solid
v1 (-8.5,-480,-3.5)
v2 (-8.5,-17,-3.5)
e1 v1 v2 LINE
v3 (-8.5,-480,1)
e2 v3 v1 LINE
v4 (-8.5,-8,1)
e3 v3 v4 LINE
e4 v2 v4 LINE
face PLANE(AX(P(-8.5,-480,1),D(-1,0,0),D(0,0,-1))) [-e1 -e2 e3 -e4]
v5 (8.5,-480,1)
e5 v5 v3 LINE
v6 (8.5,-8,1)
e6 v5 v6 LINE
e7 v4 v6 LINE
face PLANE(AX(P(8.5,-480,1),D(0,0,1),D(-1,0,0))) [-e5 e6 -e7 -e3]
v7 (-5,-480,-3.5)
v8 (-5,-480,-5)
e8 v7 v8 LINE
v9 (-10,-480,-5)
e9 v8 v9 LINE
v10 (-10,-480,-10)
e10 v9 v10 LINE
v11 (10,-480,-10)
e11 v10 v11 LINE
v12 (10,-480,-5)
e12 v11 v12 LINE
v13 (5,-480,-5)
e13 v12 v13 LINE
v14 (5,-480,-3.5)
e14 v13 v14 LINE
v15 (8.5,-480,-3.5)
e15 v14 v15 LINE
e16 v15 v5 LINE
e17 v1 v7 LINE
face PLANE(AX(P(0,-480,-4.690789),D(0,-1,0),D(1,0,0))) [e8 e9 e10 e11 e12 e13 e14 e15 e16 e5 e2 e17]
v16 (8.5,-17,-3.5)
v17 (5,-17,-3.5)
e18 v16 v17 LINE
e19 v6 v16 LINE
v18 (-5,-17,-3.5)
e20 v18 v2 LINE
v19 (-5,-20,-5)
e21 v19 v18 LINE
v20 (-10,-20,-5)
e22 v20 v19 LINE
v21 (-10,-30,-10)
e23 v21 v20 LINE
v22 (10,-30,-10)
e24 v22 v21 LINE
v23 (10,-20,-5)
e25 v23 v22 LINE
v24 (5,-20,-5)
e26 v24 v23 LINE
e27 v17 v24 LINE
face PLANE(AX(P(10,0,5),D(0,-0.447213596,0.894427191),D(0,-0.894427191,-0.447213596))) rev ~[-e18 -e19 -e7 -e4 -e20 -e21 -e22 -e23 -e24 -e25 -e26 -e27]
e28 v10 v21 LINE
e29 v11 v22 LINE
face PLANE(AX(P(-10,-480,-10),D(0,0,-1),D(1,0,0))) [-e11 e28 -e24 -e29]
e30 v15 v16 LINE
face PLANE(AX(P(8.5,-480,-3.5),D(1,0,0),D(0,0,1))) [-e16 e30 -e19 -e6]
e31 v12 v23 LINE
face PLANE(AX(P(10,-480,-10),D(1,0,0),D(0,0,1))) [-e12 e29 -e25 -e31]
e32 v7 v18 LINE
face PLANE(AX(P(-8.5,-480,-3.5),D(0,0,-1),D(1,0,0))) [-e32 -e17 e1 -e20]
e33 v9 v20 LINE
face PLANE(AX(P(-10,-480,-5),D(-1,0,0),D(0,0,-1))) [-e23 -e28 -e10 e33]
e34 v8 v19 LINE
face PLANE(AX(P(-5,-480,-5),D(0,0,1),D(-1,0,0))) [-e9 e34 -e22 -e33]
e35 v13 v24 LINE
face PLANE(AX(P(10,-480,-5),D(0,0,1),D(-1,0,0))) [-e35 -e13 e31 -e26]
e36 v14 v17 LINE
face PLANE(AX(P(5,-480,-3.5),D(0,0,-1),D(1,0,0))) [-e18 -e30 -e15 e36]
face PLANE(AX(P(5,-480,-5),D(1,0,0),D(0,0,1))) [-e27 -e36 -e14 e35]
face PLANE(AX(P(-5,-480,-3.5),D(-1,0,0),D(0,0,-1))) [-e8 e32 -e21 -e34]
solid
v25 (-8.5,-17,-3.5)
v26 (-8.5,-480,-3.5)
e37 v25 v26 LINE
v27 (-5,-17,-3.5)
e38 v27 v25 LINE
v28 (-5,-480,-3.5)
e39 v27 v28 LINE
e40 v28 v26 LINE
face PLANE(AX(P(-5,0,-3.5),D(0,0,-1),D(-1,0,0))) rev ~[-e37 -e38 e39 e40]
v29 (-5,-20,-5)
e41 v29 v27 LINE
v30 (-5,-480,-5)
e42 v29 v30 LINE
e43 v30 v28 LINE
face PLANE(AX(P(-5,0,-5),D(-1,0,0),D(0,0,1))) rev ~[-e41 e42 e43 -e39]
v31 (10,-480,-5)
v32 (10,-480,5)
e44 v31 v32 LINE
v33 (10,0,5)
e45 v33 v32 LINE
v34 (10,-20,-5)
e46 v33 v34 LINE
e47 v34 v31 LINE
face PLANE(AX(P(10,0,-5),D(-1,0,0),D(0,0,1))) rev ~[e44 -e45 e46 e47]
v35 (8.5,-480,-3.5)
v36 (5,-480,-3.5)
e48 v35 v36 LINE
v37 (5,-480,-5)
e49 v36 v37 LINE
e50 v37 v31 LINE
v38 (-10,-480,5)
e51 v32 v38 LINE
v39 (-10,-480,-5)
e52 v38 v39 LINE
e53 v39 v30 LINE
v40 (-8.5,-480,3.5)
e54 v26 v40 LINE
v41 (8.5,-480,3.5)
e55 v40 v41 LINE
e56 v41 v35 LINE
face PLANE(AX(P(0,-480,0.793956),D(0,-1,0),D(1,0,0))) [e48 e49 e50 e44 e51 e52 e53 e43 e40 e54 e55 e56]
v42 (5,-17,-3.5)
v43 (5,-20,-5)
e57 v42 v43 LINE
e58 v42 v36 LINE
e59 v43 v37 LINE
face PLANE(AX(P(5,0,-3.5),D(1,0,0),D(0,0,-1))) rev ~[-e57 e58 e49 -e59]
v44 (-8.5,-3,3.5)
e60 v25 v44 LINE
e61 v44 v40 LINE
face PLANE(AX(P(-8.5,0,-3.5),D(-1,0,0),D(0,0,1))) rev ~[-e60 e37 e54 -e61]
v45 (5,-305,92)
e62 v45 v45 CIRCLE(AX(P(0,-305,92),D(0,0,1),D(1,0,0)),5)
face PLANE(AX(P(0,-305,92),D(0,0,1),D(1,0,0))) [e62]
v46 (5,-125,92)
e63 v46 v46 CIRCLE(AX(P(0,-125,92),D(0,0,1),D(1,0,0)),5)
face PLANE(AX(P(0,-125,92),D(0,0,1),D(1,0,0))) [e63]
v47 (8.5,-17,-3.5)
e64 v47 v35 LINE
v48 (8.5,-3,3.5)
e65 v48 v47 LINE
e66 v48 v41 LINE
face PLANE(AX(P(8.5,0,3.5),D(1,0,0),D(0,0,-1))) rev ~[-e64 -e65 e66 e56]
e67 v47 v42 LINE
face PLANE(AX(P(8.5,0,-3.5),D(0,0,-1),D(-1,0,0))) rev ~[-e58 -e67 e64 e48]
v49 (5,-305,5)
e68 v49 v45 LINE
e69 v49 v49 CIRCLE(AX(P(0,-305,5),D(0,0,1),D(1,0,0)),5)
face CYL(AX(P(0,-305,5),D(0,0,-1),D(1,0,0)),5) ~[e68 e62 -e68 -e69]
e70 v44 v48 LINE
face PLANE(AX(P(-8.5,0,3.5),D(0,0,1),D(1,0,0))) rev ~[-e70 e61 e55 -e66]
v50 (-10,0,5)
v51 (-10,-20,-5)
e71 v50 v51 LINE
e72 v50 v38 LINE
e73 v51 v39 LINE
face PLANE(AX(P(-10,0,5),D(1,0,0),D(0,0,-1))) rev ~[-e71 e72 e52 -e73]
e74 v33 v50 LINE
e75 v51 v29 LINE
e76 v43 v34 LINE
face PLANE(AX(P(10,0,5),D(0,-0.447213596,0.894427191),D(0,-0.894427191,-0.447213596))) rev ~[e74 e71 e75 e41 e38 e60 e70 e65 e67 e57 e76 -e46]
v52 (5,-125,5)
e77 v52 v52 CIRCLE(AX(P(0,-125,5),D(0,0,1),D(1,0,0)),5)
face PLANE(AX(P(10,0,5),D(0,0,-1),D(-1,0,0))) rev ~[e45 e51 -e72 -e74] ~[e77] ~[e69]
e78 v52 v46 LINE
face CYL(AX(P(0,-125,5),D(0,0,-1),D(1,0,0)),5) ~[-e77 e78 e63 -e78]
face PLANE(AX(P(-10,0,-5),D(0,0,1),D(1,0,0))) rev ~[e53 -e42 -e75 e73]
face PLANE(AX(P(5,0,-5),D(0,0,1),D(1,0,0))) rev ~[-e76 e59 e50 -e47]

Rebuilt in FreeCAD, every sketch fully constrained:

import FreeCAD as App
import Part
import Sketcher

doc = App.newDocument("Part")
body = doc.addObject("PartDesign::Body", "Body")

# Sketch on XZ plane
sketch1 = body.newObject("Sketcher::SketchObject", "Sketch")
sketch1.AttachmentSupport = (doc.getObject("XZ_Plane"), [""])
sketch1.MapMode = "FlatFace"
sketch1.addGeometry([
    Part.LineSegment(App.Vector(-10, 5, 0), App.Vector(-10, -5, 0)),  # 0
    Part.LineSegment(App.Vector(-10, -5, 0), App.Vector(-5, -5, 0)),  # 1
    Part.LineSegment(App.Vector(-5, -5, 0), App.Vector(-5, -3.5, 0)),  # 2
    Part.LineSegment(App.Vector(-5, -3.5, 0), App.Vector(-8.5, -3.5, 0)),  # 3
    Part.LineSegment(App.Vector(-8.5, -3.5, 0), App.Vector(-8.5, 3.5, 0)),  # 4
    Part.LineSegment(App.Vector(-8.5, 3.5, 0), App.Vector(8.5, 3.5, 0)),  # 5
    Part.LineSegment(App.Vector(8.5, 3.5, 0), App.Vector(8.5, -3.5, 0)),  # 6
    Part.LineSegment(App.Vector(8.5, -3.5, 0), App.Vector(5, -3.5, 0)),  # 7
    Part.LineSegment(App.Vector(5, -3.5, 0), App.Vector(5, -5, 0)),  # 8
    Part.LineSegment(App.Vector(5, -5, 0), App.Vector(10, -5, 0)),  # 9
    Part.LineSegment(App.Vector(10, -5, 0), App.Vector(10, 5, 0)),  # 10
    Part.LineSegment(App.Vector(10, 5, 0), App.Vector(-10, 5, 0)),  # 11
], False)
sketch1.addConstraint([
    Sketcher.Constraint("Coincident", 0, 2, 1, 1),
    Sketcher.Constraint("Coincident", 1, 2, 2, 1),
    Sketcher.Constraint("Coincident", 2, 2, 3, 1),
    Sketcher.Constraint("Coincident", 3, 2, 4, 1),
    Sketcher.Constraint("Coincident", 4, 2, 5, 1),
    Sketcher.Constraint("Coincident", 5, 2, 6, 1),
    Sketcher.Constraint("Coincident", 6, 2, 7, 1),
    Sketcher.Constraint("Coincident", 7, 2, 8, 1),
    Sketcher.Constraint("Coincident", 8, 2, 9, 1),
    Sketcher.Constraint("Coincident", 9, 2, 10, 1),
    Sketcher.Constraint("Coincident", 10, 2, 11, 1),
    Sketcher.Constraint("Coincident", 11, 2, 0, 1),
    Sketcher.Constraint("Vertical", 0),
    Sketcher.Constraint("Horizontal", 1),
    Sketcher.Constraint("Vertical", 2),
    Sketcher.Constraint("Horizontal", 3),
    Sketcher.Constraint("Vertical", 4),
    Sketcher.Constraint("Horizontal", 5),
    Sketcher.Constraint("Vertical", 6),
    Sketcher.Constraint("Horizontal", 7),
    Sketcher.Constraint("Vertical", 8),
    Sketcher.Constraint("Horizontal", 9),
    Sketcher.Constraint("Vertical", 10),
    Sketcher.Constraint("Horizontal", 11),
    Sketcher.Constraint("Symmetric", 3, 2, 5, 2, -1, 1),
    Sketcher.Constraint("Symmetric", 0, 2, 10, 2, -1, 1),
    Sketcher.Constraint("Symmetric", 2, 2, 7, 2, -2),
    Sketcher.Constraint("Horizontal", 1, 2, 8, 2),
    Sketcher.Constraint("DistanceX", 1, 1, 1, 2, 5.0),
    Sketcher.Constraint("DistanceX", 5, 1, 5, 2, 17.0),
    Sketcher.Constraint("DistanceX", 11, 2, 11, 1, 20.0),
    Sketcher.Constraint("DistanceY", 0, 2, 0, 1, 10.0),
    Sketcher.Constraint("DistanceY", 4, 1, 4, 2, 7.0),
])
pad1 = body.newObject("PartDesign::Pad", "Pad")
pad1.Profile = sketch1
pad1.Length = 480
body2 = doc.addObject("PartDesign::Body", "Body001")

# Sketch on XZ plane
sketch2 = body2.newObject("Sketcher::SketchObject", "Sketch001")
sketch2.AttachmentSupport = (doc.getObject("XZ_Plane001"), [""])
sketch2.MapMode = "FlatFace"
sketch2.AttachmentOffset = App.Placement(App.Vector(0, 0, 480), App.Rotation())
sketch2.addGeometry([
    Part.LineSegment(App.Vector(-8.5, 1, 0), App.Vector(-8.5, -3.5, 0)),  # 0
    Part.LineSegment(App.Vector(-8.5, -3.5, 0), App.Vector(-5, -3.5, 0)),  # 1
    Part.LineSegment(App.Vector(-5, -3.5, 0), App.Vector(-5, -5, 0)),  # 2
    Part.LineSegment(App.Vector(-5, -5, 0), App.Vector(-10, -5, 0)),  # 3
    Part.LineSegment(App.Vector(-10, -5, 0), App.Vector(-10, -10, 0)),  # 4
    Part.LineSegment(App.Vector(-10, -10, 0), App.Vector(10, -10, 0)),  # 5
    Part.LineSegment(App.Vector(10, -10, 0), App.Vector(10, -5, 0)),  # 6
    Part.LineSegment(App.Vector(10, -5, 0), App.Vector(5, -5, 0)),  # 7
    Part.LineSegment(App.Vector(5, -5, 0), App.Vector(5, -3.5, 0)),  # 8
    Part.LineSegment(App.Vector(5, -3.5, 0), App.Vector(8.5, -3.5, 0)),  # 9
    Part.LineSegment(App.Vector(8.5, -3.5, 0), App.Vector(8.5, 1, 0)),  # 10
    Part.LineSegment(App.Vector(8.5, 1, 0), App.Vector(-8.5, 1, 0)),  # 11
], False)
sketch2.addConstraint([
    Sketcher.Constraint("Coincident", 0, 2, 1, 1),
    Sketcher.Constraint("Coincident", 1, 2, 2, 1),
    Sketcher.Constraint("Coincident", 2, 2, 3, 1),
    Sketcher.Constraint("Coincident", 3, 2, 4, 1),
    Sketcher.Constraint("Coincident", 4, 2, 5, 1),
    Sketcher.Constraint("Coincident", 5, 2, 6, 1),
    Sketcher.Constraint("Coincident", 6, 2, 7, 1),
    Sketcher.Constraint("Coincident", 7, 2, 8, 1),
    Sketcher.Constraint("Coincident", 8, 2, 9, 1),
    Sketcher.Constraint("Coincident", 9, 2, 10, 1),
    Sketcher.Constraint("Coincident", 10, 2, 11, 1),
    Sketcher.Constraint("Coincident", 11, 2, 0, 1),
    Sketcher.Constraint("Vertical", 0),
    Sketcher.Constraint("Horizontal", 1),
    Sketcher.Constraint("Vertical", 2),
    Sketcher.Constraint("Horizontal", 3),
    Sketcher.Constraint("Vertical", 4),
    Sketcher.Constraint("Horizontal", 5),
    Sketcher.Constraint("Vertical", 6),
    Sketcher.Constraint("Horizontal", 7),
    Sketcher.Constraint("Vertical", 8),
    Sketcher.Constraint("Horizontal", 9),
    Sketcher.Constraint("Vertical", 10),
    Sketcher.Constraint("Horizontal", 11),
    Sketcher.Constraint("Symmetric", 3, 2, 6, 2, -2),
    Sketcher.Constraint("Symmetric", 1, 2, 8, 2, -2),
    Sketcher.Constraint("Equal", 1, 9),
    Sketcher.Constraint("Equal", 7, 4),
    Sketcher.Constraint("DistanceX", 3, 2, 3, 1, 5.0),
    Sketcher.Constraint("DistanceX", 5, 1, 5, 2, 20.0),
    Sketcher.Constraint("DistanceX", 11, 2, 11, 1, 17.0),
    Sketcher.Constraint("DistanceY", 0, 2, 0, 1, 4.5),
    Sketcher.Constraint("DistanceY", 2, 2, 2, 1, 1.5),
    Sketcher.Constraint("DistanceY", 2, 2, -1, 1, 5.0),
])
pad2 = body2.newObject("PartDesign::Pad", "Pad001")
pad2.Profile = sketch2
pad2.Length = 480
pad2.Reversed = True
body3 = doc.addObject("PartDesign::Body", "Body002")

# Sketch on YZ plane
sketch3 = body3.newObject("Sketcher::SketchObject", "Sketch002")
sketch3.AttachmentSupport = (doc.getObject("YZ_Plane002"), [""])
sketch3.MapMode = "FlatFace"
sketch3.AttachmentOffset = App.Placement(App.Vector(0, 0, 10), App.Rotation())
sketch3.addGeometry([
    Part.LineSegment(App.Vector(0, -10, 0), App.Vector(0, 5, 0)),
    Part.LineSegment(App.Vector(0, 5, 0), App.Vector(-30, -10, 0)),
    Part.LineSegment(App.Vector(-30, -10, 0), App.Vector(0, -10, 0)),
], False)
sketch3.addConstraint([
    Sketcher.Constraint("Coincident", 0, 2, 1, 1),
    Sketcher.Constraint("Coincident", 1, 2, 2, 1),
    Sketcher.Constraint("Coincident", 2, 2, 0, 1),
    Sketcher.Constraint("Vertical", 0),
    Sketcher.Constraint("Horizontal", 2),
    Sketcher.Constraint("PointOnObject", 0, 2, -2),
    Sketcher.Constraint("DistanceX", 2, 1, 2, 2, 30.0),
    Sketcher.Constraint("DistanceY", 0, 1, 0, 2, 15.0),
    Sketcher.Constraint("DistanceY", -1, 1, 0, 2, 5.0),
])
pad3 = body3.newObject("PartDesign::Pad", "Pad002")
pad3.Profile = sketch3
pad3.Length = 25
pad3.Reversed = True
doc.recompute()

body4 = doc.addObject("PartDesign::Body", "Body003")
body4.BaseFeature = body3
boolean = body.newObject("PartDesign::Boolean", "Boolean")
boolean.Type = "Cut"
boolean.addObjects([body4])
doc.recompute()

# Sketch on XY plane
sketch4 = body.newObject("Sketcher::SketchObject", "Sketch003")
sketch4.AttachmentSupport = (doc.getObject("XY_Plane"), [""])
sketch4.MapMode = "FlatFace"
sketch4.AttachmentOffset = App.Placement(App.Vector(0, 0, 5), App.Rotation())
sketch4.addGeometry([
    Part.Circle(App.Vector(0, -305, 0), App.Vector(0, 0, 1), 5),
    Part.Circle(App.Vector(0, -125, 0), App.Vector(0, 0, 1), 5),
], False)
sketch4.addConstraint([
    Sketcher.Constraint("Equal", 0, 1),
    Sketcher.Constraint("PointOnObject", 0, 3, -2),
    Sketcher.Constraint("PointOnObject", 1, 3, -2),
    Sketcher.Constraint("Diameter", 0, 10.0),
    Sketcher.Constraint("DistanceY", 0, 3, -1, 1, 305.0),
    Sketcher.Constraint("DistanceY", 1, 3, -1, 1, 125.0),
])
pad4 = body.newObject("PartDesign::Pad", "Pad003")
pad4.Profile = sketch4
pad4.Length = 87
doc.recompute()

boolean2 = body2.newObject("PartDesign::Boolean", "Boolean001")
boolean2.Type = "Cut"
boolean2.addObjects([body3])

doc.recompute()
